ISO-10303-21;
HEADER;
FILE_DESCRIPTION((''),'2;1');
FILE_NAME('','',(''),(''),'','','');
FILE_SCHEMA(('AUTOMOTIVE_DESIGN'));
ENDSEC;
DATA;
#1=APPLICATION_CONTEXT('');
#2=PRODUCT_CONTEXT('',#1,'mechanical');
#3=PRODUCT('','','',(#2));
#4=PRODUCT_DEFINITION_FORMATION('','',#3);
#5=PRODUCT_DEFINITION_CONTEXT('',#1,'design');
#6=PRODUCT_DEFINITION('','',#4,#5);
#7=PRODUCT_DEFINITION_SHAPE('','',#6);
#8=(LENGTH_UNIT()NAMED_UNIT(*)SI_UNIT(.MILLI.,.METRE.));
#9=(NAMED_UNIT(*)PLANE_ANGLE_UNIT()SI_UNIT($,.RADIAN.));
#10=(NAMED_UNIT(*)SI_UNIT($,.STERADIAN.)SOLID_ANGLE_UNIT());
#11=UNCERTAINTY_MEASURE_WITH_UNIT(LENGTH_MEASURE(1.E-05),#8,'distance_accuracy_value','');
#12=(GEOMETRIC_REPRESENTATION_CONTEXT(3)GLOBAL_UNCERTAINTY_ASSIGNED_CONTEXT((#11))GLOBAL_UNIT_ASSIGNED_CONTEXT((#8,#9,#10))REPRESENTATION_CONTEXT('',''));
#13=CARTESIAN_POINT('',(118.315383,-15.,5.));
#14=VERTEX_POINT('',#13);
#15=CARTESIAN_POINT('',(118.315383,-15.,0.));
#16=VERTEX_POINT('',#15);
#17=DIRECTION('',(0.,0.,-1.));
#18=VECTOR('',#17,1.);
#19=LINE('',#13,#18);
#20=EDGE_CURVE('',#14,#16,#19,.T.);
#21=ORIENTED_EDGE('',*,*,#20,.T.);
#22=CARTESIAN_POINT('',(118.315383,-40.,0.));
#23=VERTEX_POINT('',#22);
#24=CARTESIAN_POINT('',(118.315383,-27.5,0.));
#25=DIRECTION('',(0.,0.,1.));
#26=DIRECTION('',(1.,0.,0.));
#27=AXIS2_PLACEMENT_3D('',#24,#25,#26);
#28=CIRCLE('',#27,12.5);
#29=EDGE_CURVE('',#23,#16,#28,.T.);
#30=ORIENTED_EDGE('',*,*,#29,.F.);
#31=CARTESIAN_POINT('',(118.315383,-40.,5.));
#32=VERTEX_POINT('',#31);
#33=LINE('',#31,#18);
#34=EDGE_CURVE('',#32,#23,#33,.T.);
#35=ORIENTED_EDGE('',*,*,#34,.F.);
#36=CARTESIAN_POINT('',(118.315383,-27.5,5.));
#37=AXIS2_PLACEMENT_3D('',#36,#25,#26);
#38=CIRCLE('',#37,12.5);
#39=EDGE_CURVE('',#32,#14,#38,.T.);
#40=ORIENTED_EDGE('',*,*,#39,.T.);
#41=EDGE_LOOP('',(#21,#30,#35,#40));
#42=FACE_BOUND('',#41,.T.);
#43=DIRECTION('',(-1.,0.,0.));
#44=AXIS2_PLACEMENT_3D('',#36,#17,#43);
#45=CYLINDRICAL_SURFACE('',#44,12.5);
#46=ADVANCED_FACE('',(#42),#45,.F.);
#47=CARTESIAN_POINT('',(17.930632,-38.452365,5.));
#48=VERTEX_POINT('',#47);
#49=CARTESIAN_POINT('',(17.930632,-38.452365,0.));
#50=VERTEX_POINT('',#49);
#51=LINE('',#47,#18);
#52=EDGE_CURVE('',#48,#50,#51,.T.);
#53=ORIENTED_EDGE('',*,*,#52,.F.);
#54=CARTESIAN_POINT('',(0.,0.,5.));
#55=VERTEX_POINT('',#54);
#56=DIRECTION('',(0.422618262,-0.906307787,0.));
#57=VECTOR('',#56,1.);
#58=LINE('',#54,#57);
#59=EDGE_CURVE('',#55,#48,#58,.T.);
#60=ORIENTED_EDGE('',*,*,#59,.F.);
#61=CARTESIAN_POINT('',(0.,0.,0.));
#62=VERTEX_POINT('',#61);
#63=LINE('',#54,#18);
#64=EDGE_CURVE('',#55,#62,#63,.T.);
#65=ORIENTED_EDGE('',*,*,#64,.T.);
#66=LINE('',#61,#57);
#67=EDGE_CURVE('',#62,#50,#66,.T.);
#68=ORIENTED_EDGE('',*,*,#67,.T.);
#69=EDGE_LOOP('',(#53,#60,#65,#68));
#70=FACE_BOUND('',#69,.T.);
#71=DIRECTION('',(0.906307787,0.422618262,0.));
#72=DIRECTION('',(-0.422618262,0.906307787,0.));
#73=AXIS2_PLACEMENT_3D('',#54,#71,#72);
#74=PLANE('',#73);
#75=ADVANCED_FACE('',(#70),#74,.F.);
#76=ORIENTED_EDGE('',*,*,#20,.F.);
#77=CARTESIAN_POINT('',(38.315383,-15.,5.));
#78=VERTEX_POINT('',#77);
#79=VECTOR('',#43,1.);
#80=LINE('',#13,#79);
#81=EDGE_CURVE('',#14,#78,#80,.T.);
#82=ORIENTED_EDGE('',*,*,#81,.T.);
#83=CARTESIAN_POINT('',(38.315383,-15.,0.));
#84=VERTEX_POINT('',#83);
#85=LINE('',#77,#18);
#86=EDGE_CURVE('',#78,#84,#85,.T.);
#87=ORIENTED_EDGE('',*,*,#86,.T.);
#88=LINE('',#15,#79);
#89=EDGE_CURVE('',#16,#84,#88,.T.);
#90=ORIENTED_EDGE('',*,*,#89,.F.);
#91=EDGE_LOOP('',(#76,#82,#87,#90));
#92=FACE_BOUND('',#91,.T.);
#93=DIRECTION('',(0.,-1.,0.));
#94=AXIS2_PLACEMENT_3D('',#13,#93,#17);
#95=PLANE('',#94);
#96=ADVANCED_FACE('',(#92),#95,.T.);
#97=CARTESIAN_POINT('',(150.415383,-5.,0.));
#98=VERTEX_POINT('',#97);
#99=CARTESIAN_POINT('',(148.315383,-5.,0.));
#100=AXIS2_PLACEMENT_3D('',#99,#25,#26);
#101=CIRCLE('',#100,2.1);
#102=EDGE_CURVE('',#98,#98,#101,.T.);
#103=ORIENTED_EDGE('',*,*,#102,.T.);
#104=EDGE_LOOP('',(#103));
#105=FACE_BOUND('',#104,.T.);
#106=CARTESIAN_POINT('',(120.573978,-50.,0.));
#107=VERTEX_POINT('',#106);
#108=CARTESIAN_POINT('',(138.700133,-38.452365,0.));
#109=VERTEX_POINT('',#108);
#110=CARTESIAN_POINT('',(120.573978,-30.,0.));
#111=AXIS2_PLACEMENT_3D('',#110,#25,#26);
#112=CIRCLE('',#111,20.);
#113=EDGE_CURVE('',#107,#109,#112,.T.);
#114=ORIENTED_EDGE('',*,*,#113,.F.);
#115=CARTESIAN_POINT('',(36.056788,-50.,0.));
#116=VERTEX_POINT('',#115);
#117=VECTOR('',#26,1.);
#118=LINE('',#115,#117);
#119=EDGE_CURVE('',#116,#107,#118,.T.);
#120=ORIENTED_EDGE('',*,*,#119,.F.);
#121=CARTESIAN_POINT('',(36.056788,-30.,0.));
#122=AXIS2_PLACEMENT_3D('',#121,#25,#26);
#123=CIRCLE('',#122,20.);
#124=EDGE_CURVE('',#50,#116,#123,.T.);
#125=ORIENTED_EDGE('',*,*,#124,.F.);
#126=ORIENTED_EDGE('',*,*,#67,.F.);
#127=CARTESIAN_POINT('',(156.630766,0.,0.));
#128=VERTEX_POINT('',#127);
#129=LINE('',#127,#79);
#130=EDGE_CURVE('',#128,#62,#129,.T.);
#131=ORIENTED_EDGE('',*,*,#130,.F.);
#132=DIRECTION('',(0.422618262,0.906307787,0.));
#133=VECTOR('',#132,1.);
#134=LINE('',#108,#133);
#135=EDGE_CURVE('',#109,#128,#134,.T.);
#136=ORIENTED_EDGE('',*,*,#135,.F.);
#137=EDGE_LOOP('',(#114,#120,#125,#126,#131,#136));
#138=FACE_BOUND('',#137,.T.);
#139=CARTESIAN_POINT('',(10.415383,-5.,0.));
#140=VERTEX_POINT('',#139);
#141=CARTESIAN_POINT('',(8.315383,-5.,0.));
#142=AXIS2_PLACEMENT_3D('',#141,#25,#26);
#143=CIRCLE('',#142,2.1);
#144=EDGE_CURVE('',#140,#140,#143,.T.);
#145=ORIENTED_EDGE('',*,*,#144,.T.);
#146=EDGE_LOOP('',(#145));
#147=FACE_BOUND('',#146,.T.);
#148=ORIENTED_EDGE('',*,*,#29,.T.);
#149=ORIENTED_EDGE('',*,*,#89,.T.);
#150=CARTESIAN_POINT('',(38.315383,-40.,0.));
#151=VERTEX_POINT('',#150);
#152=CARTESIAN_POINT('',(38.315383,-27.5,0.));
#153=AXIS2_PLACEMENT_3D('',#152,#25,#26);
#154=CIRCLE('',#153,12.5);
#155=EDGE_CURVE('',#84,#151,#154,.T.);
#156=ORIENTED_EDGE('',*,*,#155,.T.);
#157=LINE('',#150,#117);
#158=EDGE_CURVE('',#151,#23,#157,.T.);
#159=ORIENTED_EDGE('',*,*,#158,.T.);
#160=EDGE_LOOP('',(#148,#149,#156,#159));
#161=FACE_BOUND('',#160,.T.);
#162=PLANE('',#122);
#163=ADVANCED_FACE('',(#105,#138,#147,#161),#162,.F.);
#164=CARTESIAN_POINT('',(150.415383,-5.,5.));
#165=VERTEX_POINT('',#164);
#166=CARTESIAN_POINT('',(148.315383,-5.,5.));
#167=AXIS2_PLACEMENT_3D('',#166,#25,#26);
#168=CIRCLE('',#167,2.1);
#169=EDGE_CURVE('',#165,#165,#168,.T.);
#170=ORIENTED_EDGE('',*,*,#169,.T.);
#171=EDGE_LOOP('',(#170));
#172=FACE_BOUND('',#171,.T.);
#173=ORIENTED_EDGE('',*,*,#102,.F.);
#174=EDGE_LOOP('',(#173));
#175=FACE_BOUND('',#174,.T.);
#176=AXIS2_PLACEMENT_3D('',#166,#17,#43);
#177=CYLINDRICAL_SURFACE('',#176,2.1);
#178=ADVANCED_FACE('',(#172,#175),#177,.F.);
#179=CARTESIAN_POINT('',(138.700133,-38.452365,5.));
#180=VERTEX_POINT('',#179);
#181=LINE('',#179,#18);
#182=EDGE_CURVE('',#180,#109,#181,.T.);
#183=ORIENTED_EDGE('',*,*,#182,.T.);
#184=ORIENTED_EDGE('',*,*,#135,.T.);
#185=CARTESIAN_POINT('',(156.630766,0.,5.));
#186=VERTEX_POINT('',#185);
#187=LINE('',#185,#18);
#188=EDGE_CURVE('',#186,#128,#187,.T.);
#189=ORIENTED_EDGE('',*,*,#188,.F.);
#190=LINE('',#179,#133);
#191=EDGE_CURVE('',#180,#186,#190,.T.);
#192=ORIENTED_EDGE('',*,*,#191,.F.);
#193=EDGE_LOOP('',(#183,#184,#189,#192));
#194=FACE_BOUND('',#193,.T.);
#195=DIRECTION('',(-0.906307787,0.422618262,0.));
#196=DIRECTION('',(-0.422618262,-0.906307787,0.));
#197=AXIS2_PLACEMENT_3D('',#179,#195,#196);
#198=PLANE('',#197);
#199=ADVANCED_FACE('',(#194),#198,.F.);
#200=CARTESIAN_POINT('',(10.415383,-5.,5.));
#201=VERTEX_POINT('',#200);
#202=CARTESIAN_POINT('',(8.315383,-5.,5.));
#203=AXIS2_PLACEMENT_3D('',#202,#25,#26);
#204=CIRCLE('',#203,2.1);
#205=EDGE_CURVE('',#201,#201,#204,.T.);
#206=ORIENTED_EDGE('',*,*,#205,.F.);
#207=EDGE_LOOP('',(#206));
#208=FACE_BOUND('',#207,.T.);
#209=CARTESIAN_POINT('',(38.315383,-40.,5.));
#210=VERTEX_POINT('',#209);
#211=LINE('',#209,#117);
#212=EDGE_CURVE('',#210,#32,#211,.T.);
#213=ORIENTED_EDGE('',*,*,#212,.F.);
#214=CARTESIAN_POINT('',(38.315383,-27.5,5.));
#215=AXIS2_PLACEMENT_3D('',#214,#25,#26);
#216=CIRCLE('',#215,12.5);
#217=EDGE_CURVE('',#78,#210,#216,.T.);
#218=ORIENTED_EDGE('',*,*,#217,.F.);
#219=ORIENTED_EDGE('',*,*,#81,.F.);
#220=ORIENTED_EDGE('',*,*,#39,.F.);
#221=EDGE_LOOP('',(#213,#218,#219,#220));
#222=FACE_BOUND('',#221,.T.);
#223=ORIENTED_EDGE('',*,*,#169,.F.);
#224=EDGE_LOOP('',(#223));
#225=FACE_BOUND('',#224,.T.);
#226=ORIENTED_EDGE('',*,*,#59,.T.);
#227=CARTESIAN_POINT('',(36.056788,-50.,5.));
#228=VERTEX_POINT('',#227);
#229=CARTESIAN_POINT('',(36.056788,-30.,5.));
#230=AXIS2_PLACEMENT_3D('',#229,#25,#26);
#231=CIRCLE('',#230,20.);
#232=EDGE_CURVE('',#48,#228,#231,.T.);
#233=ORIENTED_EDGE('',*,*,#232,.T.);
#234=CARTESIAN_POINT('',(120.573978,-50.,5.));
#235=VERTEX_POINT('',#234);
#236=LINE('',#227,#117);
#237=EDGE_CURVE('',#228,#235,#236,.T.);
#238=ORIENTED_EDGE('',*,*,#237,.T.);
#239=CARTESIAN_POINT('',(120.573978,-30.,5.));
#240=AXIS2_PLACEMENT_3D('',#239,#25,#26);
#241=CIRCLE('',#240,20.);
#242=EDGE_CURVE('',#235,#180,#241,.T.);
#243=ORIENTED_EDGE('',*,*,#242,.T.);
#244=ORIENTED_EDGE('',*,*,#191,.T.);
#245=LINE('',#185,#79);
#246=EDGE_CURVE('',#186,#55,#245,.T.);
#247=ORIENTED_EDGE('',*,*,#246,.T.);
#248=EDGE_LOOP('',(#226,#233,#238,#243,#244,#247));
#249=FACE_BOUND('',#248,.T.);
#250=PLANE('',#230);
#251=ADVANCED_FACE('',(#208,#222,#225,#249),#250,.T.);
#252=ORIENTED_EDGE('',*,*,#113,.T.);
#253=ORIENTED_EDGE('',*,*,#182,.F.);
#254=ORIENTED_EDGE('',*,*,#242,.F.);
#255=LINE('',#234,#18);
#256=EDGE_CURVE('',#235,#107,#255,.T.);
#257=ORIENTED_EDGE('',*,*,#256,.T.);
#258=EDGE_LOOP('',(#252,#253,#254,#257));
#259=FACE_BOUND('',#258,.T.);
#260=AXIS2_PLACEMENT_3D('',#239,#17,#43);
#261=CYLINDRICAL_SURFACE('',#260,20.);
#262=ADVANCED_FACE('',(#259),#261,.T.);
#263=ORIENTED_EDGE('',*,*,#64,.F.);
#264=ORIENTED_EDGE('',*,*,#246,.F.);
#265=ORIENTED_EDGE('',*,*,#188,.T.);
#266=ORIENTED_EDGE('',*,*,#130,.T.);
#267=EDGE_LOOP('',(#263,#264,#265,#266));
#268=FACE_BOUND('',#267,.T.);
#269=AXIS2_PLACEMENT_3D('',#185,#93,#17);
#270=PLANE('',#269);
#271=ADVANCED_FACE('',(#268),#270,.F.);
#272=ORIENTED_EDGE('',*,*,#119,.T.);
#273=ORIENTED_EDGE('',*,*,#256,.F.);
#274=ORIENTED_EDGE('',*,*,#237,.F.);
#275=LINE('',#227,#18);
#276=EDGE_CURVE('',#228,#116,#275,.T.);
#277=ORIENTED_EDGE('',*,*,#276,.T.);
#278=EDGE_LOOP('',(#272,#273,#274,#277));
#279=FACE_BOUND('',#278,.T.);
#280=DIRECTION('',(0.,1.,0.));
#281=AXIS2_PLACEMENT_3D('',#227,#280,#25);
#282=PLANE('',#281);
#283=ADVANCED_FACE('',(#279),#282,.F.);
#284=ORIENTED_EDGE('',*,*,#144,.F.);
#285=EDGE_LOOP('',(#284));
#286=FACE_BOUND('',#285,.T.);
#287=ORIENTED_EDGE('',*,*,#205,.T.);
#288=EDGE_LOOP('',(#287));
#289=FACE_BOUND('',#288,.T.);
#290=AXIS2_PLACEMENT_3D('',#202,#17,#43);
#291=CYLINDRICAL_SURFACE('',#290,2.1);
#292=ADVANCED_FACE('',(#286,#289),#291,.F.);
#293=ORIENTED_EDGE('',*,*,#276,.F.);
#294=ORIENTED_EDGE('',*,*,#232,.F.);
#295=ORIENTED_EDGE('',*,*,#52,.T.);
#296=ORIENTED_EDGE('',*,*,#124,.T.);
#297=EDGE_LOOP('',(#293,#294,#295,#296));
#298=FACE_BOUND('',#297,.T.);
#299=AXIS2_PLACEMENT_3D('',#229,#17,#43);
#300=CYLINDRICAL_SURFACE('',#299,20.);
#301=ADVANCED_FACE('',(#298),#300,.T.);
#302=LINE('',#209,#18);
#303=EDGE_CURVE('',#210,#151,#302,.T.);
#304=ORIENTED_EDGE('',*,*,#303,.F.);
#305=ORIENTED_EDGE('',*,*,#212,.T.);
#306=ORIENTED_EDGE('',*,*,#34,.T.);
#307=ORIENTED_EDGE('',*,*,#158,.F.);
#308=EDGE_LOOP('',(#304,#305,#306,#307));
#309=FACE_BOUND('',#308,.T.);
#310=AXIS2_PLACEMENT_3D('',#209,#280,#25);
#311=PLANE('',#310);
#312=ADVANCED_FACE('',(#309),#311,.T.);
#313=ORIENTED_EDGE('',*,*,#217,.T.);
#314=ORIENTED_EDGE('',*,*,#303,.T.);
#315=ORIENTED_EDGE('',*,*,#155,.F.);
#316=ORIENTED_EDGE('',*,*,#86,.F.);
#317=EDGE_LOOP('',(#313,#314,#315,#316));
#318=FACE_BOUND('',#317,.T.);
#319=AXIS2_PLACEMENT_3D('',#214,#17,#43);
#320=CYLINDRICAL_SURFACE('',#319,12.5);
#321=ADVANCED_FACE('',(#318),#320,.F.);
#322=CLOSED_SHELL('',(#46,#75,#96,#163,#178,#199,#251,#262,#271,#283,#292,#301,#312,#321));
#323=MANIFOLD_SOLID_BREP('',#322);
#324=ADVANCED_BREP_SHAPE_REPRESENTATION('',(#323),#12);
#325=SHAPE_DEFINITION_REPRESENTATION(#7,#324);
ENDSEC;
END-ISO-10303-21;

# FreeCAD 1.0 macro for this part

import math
import FreeCAD as App
import Part
import Sketcher

V = App.Vector
Q = App.Units.Quantity

doc = App.newDocument("Part")
body = doc.addObject("PartDesign::Body", "Body")

# Sketch on XY plane
sketch1 = doc.addObject("Sketcher::SketchObject", "Sketch")
body.addObject(sketch1)
sketch1.AttachmentSupport = (doc.XY_Plane, [""])
sketch1.MapMode = "FlatFace"
sketch1.addGeometry([
    Part.LineSegment(V(156.6, 0, 0), V(0, 0, 0)),  # 0
    Part.LineSegment(V(0, 0, 0), V(17.9, -38.5, 0)),  # 1
    Part.ArcOfCircle(Part.Circle(V(36.1, -30, 0), V(0, 0, 1), 20), math.radians(-155), math.radians(-90)),  # 2
    Part.LineSegment(V(36.1, -50, 0), V(120.6, -50, 0)),  # 3
    Part.ArcOfCircle(Part.Circle(V(120.6, -30, 0), V(0, 0, 1), 20), math.radians(-90), math.radians(-25)),  # 4
    Part.LineSegment(V(138.7, -38.5, 0), V(156.6, 0, 0)),  # 5
    Part.LineSegment(V(38.3, -15, 0), V(118.3, -15, 0)),  # 6
    Part.ArcOfCircle(Part.Circle(V(118.3, -27.5, 0), V(0, 0, 1), 12.5), math.radians(-90), math.radians(90)),  # 7
    Part.LineSegment(V(118.3, -40, 0), V(38.3, -40, 0)),  # 8
    Part.ArcOfCircle(Part.Circle(V(38.3, -27.5, 0), V(0, 0, 1), 12.5), math.radians(90), math.radians(270)),  # 9
    Part.Circle(V(8.3, -5, 0), V(0, 0, 1), 2.1),  # 10
    Part.Circle(V(148.3, -5, 0), V(0, 0, 1), 2.1),  # 11
], False)
sketch1.addConstraint([
    Sketcher.Constraint("Coincident", 0, 2, 1, 1),
    Sketcher.Constraint("Tangent", 1, 2, 2, 1),
    Sketcher.Constraint("Tangent", 2, 2, 3, 1),
    Sketcher.Constraint("Tangent", 3, 2, 4, 1),
    Sketcher.Constraint("Tangent", 4, 2, 5, 1),
    Sketcher.Constraint("Coincident", 5, 2, 0, 1),
    Sketcher.Constraint("Tangent", 6, 2, 7, 2),
    Sketcher.Constraint("Tangent", 7, 1, 8, 1),
    Sketcher.Constraint("Tangent", 8, 2, 9, 2),
    Sketcher.Constraint("Tangent", 9, 1, 6, 1),
    Sketcher.Constraint("Horizontal", 0),
    Sketcher.Constraint("Horizontal", 3),
    Sketcher.Constraint("Horizontal", 6),
    Sketcher.Constraint("Horizontal", 8),
    Sketcher.Constraint("Coincident", 0, 2, -1, 1),
    Sketcher.Constraint("Equal", 2, 4),
    Sketcher.Constraint("Equal", 10, 11),
    Sketcher.Constraint("Horizontal", 10, 3, 11, 3),
    Sketcher.Constraint("Horizontal", 1, 2, 4, 2),
    Sketcher.Constraint("Radius", 2, 20.0),
    Sketcher.Constraint("Diameter", 10, 4.2),
    Sketcher.Constraint("Radius", 7, 12.5),
    Sketcher.Constraint("DistanceX", 6, 1, 6, 2, 80.0),
    Sketcher.Constraint("Angle", 1, Q("-65 deg")),
    Sketcher.Constraint("DistanceY", 2, 3, -1, 1, 30.0),
    Sketcher.Constraint("DistanceY", 10, 3, -1, 1, 5.0),
    Sketcher.Constraint("DistanceY", 6, 2, -1, 1, 15.0),
    Sketcher.Constraint("DistanceX", 10, 3, 9, 3, 30.0),
    Sketcher.Constraint("DistanceX", 7, 3, 11, 3, 30.0),
    Sketcher.Constraint("DistanceX", 3, 1, 3, 2, 84.51719),
    Sketcher.Constraint("DistanceX", 1, 2, 9, 3, 20.384751),
])
pad1 = doc.addObject("PartDesign::Pad", "Pad")
body.addObject(pad1)
pad1.Profile = sketch1
pad1.Length = 5

doc.recompute()
